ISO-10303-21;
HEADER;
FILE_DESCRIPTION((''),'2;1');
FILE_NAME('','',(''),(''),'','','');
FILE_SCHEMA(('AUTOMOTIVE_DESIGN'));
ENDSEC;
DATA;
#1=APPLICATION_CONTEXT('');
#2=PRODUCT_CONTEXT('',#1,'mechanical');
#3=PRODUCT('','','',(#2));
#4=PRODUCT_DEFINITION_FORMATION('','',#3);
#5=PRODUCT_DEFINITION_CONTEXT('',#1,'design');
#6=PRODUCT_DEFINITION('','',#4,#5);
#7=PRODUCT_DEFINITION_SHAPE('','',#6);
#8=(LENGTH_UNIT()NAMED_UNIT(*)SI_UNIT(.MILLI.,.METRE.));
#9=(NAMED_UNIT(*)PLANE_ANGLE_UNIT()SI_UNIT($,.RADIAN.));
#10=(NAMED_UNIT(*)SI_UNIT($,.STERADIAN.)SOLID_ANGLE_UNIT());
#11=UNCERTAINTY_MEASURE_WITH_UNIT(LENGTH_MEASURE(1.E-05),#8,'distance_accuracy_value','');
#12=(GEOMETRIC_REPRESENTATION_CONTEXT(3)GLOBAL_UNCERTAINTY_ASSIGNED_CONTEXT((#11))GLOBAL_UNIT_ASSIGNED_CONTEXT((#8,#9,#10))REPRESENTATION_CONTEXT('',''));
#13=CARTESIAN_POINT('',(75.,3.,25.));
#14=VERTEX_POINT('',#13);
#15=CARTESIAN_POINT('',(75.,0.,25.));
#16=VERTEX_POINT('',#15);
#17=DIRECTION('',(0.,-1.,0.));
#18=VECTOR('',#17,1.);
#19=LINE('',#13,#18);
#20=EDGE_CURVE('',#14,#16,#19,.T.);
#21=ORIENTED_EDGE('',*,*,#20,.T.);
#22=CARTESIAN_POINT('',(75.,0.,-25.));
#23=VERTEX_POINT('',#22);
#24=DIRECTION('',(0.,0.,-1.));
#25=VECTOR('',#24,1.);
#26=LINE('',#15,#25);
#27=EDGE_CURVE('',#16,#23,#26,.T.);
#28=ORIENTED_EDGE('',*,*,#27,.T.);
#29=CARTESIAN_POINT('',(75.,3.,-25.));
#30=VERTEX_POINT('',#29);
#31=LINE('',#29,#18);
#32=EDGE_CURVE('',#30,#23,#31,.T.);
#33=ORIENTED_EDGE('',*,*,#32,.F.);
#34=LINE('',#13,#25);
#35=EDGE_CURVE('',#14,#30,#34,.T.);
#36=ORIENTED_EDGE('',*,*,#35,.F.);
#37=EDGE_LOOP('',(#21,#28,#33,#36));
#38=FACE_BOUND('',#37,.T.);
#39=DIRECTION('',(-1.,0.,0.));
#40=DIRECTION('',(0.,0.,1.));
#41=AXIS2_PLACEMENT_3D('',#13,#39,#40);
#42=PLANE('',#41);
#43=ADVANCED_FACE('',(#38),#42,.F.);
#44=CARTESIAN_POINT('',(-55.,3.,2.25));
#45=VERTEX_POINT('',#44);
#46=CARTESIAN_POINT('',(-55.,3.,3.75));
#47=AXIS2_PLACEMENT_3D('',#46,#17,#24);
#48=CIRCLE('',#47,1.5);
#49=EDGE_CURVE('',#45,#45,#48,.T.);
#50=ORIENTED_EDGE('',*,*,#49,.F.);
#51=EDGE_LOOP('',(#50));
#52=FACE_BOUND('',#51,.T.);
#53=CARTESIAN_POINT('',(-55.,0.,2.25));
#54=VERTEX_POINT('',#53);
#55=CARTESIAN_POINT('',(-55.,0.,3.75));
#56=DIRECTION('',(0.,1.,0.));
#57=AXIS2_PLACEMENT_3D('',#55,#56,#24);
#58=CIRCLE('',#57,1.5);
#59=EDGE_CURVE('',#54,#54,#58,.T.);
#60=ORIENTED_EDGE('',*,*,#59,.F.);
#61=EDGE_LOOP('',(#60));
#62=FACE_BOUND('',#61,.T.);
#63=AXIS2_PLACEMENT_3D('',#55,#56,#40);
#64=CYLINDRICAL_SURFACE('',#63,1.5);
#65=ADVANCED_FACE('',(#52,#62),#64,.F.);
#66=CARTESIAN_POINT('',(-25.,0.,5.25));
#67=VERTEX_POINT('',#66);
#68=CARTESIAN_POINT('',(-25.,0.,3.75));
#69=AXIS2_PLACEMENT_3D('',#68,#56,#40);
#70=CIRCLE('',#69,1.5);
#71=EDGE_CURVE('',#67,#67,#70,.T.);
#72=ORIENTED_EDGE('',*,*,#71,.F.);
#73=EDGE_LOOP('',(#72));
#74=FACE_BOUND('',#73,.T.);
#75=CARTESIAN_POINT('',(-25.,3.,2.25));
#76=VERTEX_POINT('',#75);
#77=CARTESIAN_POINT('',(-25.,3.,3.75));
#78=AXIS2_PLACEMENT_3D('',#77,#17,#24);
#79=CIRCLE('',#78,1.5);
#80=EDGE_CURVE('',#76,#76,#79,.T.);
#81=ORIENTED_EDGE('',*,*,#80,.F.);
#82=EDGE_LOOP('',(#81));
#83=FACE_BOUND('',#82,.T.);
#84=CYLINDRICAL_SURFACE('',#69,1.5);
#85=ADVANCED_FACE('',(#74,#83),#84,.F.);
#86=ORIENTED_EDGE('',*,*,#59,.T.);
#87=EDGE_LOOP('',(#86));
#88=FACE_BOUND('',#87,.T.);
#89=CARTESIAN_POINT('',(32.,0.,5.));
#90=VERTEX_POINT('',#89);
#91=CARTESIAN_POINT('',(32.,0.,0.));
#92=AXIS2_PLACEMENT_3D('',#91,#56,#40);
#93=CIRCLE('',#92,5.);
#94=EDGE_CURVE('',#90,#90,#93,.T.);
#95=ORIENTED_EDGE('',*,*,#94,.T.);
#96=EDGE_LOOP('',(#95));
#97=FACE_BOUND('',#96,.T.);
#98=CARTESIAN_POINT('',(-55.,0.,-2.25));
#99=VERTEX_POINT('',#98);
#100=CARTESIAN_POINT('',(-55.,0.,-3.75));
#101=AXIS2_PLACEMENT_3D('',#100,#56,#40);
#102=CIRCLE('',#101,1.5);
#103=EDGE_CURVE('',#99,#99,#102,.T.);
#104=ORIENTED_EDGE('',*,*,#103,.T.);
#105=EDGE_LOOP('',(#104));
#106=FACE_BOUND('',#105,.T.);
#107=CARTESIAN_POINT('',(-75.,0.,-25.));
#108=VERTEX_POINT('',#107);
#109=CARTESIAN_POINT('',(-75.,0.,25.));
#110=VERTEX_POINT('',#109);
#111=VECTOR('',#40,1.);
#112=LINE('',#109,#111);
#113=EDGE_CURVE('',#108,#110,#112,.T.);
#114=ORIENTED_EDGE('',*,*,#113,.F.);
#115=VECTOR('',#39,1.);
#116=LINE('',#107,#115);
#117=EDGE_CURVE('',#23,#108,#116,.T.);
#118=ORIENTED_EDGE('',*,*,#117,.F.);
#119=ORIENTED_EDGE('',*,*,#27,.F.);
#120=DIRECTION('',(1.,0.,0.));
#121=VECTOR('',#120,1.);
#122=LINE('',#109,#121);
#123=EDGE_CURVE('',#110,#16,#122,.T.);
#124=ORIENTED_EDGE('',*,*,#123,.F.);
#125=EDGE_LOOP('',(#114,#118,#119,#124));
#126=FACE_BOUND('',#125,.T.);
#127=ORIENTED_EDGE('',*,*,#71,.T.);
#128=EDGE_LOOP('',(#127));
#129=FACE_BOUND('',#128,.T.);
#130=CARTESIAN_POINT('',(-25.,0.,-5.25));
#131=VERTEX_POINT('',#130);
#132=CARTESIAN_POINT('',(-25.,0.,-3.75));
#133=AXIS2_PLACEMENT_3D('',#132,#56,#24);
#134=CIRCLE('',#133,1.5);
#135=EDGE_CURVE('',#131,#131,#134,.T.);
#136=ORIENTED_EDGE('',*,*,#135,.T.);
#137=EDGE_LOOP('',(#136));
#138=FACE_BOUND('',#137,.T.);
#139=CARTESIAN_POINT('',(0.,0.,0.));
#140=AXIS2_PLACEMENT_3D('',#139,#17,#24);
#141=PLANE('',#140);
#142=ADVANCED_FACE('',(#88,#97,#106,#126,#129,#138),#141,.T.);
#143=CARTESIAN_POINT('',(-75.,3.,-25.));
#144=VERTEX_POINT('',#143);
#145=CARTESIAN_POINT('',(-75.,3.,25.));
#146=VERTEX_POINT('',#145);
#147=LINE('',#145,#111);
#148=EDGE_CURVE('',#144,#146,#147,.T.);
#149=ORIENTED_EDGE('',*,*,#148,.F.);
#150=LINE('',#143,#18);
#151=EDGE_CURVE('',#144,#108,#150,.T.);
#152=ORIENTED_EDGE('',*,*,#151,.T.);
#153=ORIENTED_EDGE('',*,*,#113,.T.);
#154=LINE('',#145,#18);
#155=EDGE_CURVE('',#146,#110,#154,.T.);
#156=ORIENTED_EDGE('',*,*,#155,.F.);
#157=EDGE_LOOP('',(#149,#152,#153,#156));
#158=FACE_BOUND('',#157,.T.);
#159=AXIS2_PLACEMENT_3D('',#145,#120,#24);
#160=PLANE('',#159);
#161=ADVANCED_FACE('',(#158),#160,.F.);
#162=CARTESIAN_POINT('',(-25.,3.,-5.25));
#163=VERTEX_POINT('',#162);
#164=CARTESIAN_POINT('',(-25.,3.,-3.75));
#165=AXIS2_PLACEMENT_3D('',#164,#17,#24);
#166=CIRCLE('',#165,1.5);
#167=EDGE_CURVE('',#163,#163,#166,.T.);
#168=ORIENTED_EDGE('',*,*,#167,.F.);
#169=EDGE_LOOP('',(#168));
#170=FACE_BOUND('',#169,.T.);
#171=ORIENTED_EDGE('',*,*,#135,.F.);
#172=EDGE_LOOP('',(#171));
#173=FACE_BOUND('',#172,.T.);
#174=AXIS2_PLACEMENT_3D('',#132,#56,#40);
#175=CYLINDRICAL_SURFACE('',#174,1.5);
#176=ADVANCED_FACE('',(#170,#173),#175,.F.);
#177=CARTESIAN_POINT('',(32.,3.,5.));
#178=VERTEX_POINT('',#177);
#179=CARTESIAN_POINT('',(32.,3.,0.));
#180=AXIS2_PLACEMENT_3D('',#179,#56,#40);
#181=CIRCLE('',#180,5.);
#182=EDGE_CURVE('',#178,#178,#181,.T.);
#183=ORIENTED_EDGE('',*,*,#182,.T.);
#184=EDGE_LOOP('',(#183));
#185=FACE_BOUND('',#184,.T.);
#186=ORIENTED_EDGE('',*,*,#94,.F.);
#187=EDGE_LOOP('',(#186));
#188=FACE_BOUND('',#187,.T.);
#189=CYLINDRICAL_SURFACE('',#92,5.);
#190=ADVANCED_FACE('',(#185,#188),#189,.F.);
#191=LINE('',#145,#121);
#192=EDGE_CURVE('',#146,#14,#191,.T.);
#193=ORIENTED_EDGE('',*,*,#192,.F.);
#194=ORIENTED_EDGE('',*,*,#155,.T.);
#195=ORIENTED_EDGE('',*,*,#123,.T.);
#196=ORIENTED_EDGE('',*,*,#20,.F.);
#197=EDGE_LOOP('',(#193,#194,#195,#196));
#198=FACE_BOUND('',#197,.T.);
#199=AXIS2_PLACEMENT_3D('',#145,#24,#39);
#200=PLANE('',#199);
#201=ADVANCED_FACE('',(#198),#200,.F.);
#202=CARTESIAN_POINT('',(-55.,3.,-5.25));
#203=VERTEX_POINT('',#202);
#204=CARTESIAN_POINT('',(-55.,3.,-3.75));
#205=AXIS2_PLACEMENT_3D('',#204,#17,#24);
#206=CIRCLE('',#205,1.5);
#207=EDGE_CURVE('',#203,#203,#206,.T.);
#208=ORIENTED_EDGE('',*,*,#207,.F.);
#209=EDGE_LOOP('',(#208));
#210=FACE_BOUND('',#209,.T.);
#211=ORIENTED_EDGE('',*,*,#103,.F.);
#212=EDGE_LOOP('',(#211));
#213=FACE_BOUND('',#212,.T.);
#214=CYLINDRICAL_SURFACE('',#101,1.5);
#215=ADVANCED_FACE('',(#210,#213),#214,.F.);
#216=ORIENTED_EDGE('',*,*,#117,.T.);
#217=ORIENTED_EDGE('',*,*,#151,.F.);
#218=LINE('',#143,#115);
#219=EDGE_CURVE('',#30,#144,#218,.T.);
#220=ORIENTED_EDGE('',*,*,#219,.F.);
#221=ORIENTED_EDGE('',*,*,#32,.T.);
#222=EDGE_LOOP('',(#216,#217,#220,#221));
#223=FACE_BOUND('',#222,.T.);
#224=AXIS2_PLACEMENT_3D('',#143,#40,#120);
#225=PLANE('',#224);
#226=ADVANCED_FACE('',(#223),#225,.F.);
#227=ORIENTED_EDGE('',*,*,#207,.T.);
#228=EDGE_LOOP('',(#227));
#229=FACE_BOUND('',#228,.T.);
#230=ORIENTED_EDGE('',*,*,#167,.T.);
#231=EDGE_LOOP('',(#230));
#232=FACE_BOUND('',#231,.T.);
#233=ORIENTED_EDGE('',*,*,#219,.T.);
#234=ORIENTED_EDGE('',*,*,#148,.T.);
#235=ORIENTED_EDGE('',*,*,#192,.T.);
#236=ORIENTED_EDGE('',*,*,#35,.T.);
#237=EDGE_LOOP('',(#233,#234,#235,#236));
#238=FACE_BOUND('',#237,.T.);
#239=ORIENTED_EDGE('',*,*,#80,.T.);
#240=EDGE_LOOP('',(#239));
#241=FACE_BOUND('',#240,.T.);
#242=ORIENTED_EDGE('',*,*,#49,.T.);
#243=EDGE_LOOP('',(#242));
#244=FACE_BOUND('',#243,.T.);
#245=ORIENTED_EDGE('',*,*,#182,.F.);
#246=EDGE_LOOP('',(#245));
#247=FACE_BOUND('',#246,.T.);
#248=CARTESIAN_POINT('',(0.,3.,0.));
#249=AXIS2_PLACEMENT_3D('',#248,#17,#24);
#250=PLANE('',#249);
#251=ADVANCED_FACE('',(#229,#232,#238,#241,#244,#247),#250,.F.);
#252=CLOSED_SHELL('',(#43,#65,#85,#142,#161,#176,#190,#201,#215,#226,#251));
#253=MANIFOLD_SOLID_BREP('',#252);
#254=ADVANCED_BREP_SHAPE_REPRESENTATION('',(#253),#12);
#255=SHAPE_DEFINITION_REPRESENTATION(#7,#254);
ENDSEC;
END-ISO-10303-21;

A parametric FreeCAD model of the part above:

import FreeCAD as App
import Part
import Sketcher
from FreeCAD import Vector
Q = App.Units.Quantity


def add_polygon(sketch, points):
    """Adds a closed chain of lines whose ends are joined by coincident constraints."""
    first, n = sketch.GeometryCount, len(points)
    for a, b in zip(points, points[1:] + points[:1]):
        sketch.addGeometry(Part.LineSegment(App.Vector(*a, 0), App.Vector(*b, 0)), False)
    for i in range(n):
        sketch.addConstraint(Sketcher.Constraint("Coincident", first + i, 2, first + (i + 1) % n, 1))

doc = App.newDocument("Part")
body = doc.addObject("PartDesign::Body", "Body")

# Sketch on XZ plane
sketch1 = body.newObject("Sketcher::SketchObject", "Sketch")
sketch1.AttachmentSupport = (doc.getObject("XZ_Plane"), [""])
sketch1.MapMode = "FlatFace"
add_polygon(sketch1, [(-75, -25), (-75, 25), (75, 25), (75, -25)])  # lines 0-3
sketch1.addConstraint([
    Sketcher.Constraint("Vertical", 0),
    Sketcher.Constraint("Horizontal", 1),
    Sketcher.Constraint("Vertical", 2),
    Sketcher.Constraint("Horizontal", 3),
    Sketcher.Constraint("Symmetric", 0, 2, 2, 2, -1, 1),
    Sketcher.Constraint("DistanceX", 1, 1, 1, 2, Q("150 mm")),
    Sketcher.Constraint("DistanceY", 0, 1, 0, 2, Q("50 mm")),
])
pad1 = body.newObject("PartDesign::Pad", "Pad")
pad1.Profile = sketch1
pad1.Length = 3
pad1.Reversed = True

# Sketch on XZ plane
sketch2 = body.newObject("Sketcher::SketchObject", "Sketch001")
sketch2.AttachmentSupport = (doc.getObject("XZ_Plane"), [""])
sketch2.MapMode = "FlatFace"
sketch2.AttachmentOffset = App.Placement(Vector(0, 0, -3), App.Rotation())
sketch2.addGeometry([
    Part.Circle(Vector(-55, -3.8, 0), Vector(0, 0, 1), 1.5),
    Part.Circle(Vector(-55, 3.8, 0), Vector(0, 0, 1), 1.5),
    Part.Circle(Vector(-25, 3.8, 0), Vector(0, 0, 1), 1.5),
    Part.Circle(Vector(-25, -3.8, 0), Vector(0, 0, 1), 1.5),
], False)
sketch2.addConstraint([
    Sketcher.Constraint("Equal", 0, 1),
    Sketcher.Constraint("Equal", 1, 2),
    Sketcher.Constraint("Equal", 2, 3),
    Sketcher.Constraint("Symmetric", 0, 3, 1, 3, -1),
    Sketcher.Constraint("Symmetric", 2, 3, 3, 3, -1),
    Sketcher.Constraint("Horizontal", 1, 3, 2, 3),
    Sketcher.Constraint("Diameter", 0, Q("3 mm")),
    Sketcher.Constraint("DistanceX", 0, 3, -1, 1, Q("55 mm")),
    Sketcher.Constraint("DistanceX", 2, 3, -1, 1, Q("25 mm")),
    Sketcher.Constraint("DistanceY", 0, 3, 1, 3, Q("7.5 mm")),
])
pocket1 = body.newObject("PartDesign::Pocket", "Pocket")
pocket1.Profile = sketch2
pocket1.Type = "ThroughAll"
pocket1.Midplane = True

# Sketch on XZ plane
sketch3 = body.newObject("Sketcher::SketchObject", "Sketch002")
sketch3.AttachmentSupport = (doc.getObject("XZ_Plane"), [""])
sketch3.MapMode = "FlatFace"
sketch3.AttachmentOffset = App.Placement(Vector(0, 0, -3), App.Rotation())
sketch3.addGeometry(Part.Circle(Vector(32, 0, 0), Vector(0, 0, 1), 5), False)
sketch3.addConstraint([
    Sketcher.Constraint("PointOnObject", 0, 3, -1),
    Sketcher.Constraint("Diameter", 0, Q("10 mm")),
    Sketcher.Constraint("DistanceX", -1, 1, 0, 3, Q("32 mm")),
])
pocket2 = body.newObject("PartDesign::Pocket", "Pocket001")
pocket2.Profile = sketch3
pocket2.Type = "ThroughAll"
pocket2.Reversed = True

doc.recompute()
